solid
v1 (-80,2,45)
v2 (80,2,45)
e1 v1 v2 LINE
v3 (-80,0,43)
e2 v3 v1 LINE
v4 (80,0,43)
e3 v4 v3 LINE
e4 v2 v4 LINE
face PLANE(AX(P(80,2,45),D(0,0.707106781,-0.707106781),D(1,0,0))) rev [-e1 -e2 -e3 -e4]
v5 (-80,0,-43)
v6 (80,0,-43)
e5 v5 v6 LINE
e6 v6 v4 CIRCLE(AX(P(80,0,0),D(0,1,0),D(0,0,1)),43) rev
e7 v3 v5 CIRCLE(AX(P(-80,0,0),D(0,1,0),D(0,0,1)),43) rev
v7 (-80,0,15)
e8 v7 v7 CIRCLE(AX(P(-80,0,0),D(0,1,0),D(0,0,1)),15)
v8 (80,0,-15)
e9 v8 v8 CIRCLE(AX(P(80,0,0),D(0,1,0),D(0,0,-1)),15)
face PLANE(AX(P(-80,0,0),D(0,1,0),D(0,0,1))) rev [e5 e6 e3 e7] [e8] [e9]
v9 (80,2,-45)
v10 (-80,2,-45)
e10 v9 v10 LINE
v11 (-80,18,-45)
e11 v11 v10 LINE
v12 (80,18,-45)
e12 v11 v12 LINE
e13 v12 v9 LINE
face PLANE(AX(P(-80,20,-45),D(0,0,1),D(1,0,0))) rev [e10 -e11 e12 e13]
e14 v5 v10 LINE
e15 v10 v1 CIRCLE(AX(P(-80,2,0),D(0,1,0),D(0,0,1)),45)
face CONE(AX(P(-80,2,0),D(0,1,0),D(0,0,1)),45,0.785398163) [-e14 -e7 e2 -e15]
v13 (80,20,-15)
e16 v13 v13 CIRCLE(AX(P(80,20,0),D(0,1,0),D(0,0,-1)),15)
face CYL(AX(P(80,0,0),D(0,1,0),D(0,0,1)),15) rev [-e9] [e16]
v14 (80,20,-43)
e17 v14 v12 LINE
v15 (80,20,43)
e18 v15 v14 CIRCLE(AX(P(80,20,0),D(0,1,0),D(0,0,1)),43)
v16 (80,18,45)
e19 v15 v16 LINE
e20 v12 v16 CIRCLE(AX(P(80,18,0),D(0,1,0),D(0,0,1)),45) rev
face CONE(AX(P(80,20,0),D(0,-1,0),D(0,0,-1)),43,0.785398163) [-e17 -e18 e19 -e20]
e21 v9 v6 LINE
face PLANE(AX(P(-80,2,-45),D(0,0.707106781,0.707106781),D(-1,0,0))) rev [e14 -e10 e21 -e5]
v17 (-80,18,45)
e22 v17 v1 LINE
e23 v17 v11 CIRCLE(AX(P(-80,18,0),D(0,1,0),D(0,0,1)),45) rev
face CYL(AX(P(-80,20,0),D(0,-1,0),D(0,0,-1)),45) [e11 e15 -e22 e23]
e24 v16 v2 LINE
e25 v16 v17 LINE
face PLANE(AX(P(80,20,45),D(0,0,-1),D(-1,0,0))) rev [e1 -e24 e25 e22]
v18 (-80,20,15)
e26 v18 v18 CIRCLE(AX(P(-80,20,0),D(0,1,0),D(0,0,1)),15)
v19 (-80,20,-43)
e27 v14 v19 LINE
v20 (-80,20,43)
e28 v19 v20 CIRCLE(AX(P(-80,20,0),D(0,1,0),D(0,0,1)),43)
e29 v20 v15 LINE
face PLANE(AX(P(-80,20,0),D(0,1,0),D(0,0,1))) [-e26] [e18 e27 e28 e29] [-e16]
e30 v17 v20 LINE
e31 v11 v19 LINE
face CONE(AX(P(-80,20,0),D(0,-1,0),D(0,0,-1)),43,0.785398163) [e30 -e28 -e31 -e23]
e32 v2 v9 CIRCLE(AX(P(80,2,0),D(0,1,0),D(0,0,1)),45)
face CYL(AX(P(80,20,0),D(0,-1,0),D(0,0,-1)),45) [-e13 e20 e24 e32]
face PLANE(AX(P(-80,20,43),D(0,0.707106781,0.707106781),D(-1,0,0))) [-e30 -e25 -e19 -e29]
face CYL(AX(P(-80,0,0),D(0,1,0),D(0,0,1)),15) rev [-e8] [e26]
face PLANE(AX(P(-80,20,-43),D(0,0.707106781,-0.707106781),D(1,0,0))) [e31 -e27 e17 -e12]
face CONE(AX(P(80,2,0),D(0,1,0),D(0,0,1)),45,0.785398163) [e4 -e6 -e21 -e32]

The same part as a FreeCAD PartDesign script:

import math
import FreeCAD as App
import Part
import Sketcher
Q = App.Units.Quantity


def edges_at(feature, points):
    """Names of the edges that pass closest to the given points."""
    edges = feature.Shape.Edges
    near = lambda p: min(range(len(edges)), key=lambda i: edges[i].distToShape(Part.Vertex(*p))[0])
    return sorted({f"Edge{near(p) + 1}" for p in points})

doc = App.newDocument("Part")
body = doc.addObject("PartDesign::Body", "Body")

# Sketch on XZ plane
sketch1 = body.newObject("Sketcher::SketchObject", "Sketch")
sketch1.AttachmentSupport = (doc.getObject("XZ_Plane"), [""])
sketch1.MapMode = "FlatFace"
sketch1.addGeometry([
    Part.LineSegment(App.Vector(80, -45, 0), App.Vector(-80, -45, 0)),
    Part.ArcOfCircle(Part.Circle(App.Vector(-80, 0, 0), App.Vector(0, 0, 1), 45), math.radians(90), math.radians(270)),
    Part.LineSegment(App.Vector(-80, 45, 0), App.Vector(80, 45, 0)),
    Part.ArcOfCircle(Part.Circle(App.Vector(80, 0, 0), App.Vector(0, 0, 1), 45), math.radians(-90), math.radians(90)),
], False)
sketch1.addConstraint([
    Sketcher.Constraint("Tangent", 0, 2, 1, 2),
    Sketcher.Constraint("Tangent", 1, 1, 2, 1),
    Sketcher.Constraint("Tangent", 2, 2, 3, 2),
    Sketcher.Constraint("Tangent", 3, 1, 0, 1),
    Sketcher.Constraint("Horizontal", 0),
    Sketcher.Constraint("Horizontal", 2),
    Sketcher.Constraint("Symmetric", 1, 3, 3, 3, -1, 1),
    Sketcher.Constraint("Radius", 1, Q("45 mm")),
    Sketcher.Constraint("DistanceX", 0, 2, 0, 1, Q("160 mm")),
])
pad1 = body.newObject("PartDesign::Pad", "Pad")
pad1.Profile = sketch1
pad1.Length = 20
pad1.Reversed = True

# Sketch on XZ plane
sketch2 = body.newObject("Sketcher::SketchObject", "Sketch001")
sketch2.AttachmentSupport = (doc.getObject("XZ_Plane"), [""])
sketch2.MapMode = "FlatFace"
sketch2.AttachmentOffset = App.Placement(App.Vector(0, 0, -20), App.Rotation())
sketch2.addGeometry([
    Part.Circle(App.Vector(-80, 0, 0), App.Vector(0, 0, 1), 15),
    Part.Circle(App.Vector(80, 0, 0), App.Vector(0, 0, 1), 15),
], False)
sketch2.addConstraint([
    Sketcher.Constraint("Equal", 0, 1),
    Sketcher.Constraint("Symmetric", 0, 3, 1, 3, -1, 1),
    Sketcher.Constraint("PointOnObject", 0, 3, -1),
    Sketcher.Constraint("Diameter", 0, Q("30 mm")),
    Sketcher.Constraint("DistanceX", 0, 3, -1, 1, Q("80 mm")),
])
pocket1 = body.newObject("PartDesign::Pocket", "Pocket")
pocket1.Profile = sketch2
pocket1.Type = "ThroughAll"
pocket1.Reversed = True
doc.recompute()

chamfer = body.newObject("PartDesign::Chamfer", "Chamfer")
chamfer.Base = (pocket1, edges_at(pocket1, [
    (125, 20, 0),
    (0, 20, -45),
    (-125, 20, 0),
    (0, 0, -45),
    (125, 0, 0),
    (0, 0, 45),
    (-125, 0, 0),
    (0, 20, 45),
]))
chamfer.Size = 2

doc.recompute()
